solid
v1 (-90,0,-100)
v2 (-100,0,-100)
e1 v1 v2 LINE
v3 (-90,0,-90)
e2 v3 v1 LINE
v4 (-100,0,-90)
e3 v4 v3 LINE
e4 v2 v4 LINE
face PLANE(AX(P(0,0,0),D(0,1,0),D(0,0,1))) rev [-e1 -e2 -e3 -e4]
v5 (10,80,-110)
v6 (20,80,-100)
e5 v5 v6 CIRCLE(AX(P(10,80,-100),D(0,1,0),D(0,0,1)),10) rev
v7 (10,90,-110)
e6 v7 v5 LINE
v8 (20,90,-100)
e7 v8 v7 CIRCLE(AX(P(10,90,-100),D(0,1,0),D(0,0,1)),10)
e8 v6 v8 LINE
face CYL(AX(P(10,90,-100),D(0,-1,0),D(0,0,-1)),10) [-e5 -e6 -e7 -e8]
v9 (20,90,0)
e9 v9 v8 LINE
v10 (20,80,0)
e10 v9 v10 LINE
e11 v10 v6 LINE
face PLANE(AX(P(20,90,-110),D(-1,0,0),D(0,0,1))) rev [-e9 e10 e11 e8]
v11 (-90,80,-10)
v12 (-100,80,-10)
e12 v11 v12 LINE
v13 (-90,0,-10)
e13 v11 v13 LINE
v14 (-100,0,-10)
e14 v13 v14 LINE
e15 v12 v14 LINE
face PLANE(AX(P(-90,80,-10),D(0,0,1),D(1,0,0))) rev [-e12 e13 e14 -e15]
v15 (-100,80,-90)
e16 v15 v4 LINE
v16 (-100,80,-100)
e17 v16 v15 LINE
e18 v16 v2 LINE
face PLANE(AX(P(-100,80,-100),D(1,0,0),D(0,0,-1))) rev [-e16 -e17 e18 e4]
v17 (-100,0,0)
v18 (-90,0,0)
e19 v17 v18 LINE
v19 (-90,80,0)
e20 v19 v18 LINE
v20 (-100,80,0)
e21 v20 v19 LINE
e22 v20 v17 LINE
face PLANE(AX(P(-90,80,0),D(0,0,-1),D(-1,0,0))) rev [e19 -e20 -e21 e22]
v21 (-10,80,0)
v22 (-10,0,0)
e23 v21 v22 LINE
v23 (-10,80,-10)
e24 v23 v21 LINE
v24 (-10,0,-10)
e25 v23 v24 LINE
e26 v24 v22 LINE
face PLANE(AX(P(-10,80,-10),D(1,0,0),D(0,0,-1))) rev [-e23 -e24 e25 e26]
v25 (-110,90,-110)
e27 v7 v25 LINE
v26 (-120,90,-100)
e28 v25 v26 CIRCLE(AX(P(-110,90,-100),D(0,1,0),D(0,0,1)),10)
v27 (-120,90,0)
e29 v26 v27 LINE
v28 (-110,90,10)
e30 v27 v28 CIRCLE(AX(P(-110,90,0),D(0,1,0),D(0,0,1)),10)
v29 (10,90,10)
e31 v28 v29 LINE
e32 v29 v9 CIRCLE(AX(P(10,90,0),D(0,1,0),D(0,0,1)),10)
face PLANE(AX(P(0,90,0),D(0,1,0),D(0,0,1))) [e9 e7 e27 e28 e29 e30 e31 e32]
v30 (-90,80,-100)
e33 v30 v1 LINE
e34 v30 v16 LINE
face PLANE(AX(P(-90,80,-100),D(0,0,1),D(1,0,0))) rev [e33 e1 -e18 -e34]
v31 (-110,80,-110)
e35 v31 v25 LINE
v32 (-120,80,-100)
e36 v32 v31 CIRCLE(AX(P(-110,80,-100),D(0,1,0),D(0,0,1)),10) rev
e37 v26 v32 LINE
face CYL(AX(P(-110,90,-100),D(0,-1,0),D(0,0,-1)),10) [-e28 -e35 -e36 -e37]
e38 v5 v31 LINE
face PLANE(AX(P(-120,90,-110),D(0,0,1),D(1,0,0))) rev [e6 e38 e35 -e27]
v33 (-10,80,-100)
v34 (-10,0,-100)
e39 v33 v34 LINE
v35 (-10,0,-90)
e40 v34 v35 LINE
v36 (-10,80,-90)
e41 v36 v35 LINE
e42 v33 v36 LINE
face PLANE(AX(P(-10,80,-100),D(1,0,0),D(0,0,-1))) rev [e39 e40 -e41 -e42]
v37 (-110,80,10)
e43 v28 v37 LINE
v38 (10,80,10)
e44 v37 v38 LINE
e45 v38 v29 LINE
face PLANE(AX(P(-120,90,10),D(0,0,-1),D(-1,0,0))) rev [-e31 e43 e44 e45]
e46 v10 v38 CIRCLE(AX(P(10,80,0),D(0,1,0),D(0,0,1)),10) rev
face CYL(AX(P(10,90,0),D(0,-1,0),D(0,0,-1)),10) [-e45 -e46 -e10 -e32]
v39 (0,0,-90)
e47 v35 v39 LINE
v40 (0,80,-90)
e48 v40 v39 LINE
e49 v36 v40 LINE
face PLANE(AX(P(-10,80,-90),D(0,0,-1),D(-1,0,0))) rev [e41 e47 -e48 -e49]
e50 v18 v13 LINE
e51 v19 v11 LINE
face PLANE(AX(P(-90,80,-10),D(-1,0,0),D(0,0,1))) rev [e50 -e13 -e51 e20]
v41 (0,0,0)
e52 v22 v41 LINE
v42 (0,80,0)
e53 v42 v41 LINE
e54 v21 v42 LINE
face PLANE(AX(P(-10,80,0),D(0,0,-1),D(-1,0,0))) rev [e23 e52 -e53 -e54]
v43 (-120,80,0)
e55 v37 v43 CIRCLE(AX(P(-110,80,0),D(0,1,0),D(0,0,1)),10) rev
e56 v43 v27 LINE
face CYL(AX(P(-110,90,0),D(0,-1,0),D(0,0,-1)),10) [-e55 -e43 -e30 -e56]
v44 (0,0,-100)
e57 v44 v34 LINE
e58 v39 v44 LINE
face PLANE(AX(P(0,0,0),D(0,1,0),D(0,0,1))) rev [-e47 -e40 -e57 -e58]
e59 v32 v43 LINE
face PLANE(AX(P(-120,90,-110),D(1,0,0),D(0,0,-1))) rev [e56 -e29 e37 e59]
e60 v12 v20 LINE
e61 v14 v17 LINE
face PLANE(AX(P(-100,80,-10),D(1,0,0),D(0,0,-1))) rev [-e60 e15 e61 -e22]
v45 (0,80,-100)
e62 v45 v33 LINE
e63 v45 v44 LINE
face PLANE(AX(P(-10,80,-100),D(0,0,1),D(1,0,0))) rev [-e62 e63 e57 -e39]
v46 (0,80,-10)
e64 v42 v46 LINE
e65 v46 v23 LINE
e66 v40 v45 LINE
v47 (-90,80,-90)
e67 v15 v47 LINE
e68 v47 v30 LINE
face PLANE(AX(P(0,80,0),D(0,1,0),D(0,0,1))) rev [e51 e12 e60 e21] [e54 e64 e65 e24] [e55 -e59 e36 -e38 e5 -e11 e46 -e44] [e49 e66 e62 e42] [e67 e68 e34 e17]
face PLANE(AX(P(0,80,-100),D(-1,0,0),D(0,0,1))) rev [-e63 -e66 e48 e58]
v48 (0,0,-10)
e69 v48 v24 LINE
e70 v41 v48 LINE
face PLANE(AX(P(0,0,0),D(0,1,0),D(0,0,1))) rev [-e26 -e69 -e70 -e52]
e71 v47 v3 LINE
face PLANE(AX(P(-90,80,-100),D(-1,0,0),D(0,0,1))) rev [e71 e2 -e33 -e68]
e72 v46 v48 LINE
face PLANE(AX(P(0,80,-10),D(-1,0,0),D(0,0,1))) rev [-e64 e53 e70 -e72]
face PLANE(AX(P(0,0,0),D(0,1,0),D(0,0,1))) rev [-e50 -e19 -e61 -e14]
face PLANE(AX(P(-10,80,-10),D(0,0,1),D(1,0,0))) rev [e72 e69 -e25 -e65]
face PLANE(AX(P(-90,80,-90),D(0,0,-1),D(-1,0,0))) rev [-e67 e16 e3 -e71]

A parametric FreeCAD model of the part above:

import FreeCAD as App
import Part
import Sketcher
from FreeCAD import Vector


def edges_at(feature, points):
    """Names of the edges that pass closest to the given points."""
    edges = feature.Shape.Edges
    near = lambda p: min(range(len(edges)), key=lambda i: edges[i].distToShape(Part.Vertex(*p))[0])
    return sorted({f"Edge{near(p) + 1}" for p in points})

doc = App.newDocument("Part")
params = doc.addObject("Spreadsheet::Sheet", "Params")
for row, (alias, value) in enumerate([
    ("sketch1_width", "10 mm"),
    ("pad1_length", "80 mm"),
    ("sketch2_width", "10 mm"),
    ("pad2_length", "80 mm"),
    ("sketch3_width", "10 mm"),
    ("pad3_length", "80 mm"),
    ("sketch4_width", "10 mm"),
    ("pad4_length", "80 mm"),
    ("sketch5_width", "140 mm"),
    ("sketch5_height", "120 mm"),
    ("pad5_length", "10 mm"),
    ("fillet_radius", "10 mm"),
], start=1):
    params.set(f"A{row}", alias)
    params.set(f"B{row}", "=" + value)
    params.setAlias(f"B{row}", alias)

body = doc.addObject("PartDesign::Body", "Body")

sketch1 = body.newObject("Sketcher::SketchObject", "Sketch")
sketch1.AttachmentSupport = (doc.getObject("XZ_Plane"), [""])
sketch1.MapMode = "FlatFace"
sketch1.addGeometry([
    Part.LineSegment(Vector(-10, -100, 0), Vector(-10, -90, 0)),
    Part.LineSegment(Vector(-10, -90, 0), Vector(0, -90, 0)),
    Part.LineSegment(Vector(0, -90, 0), Vector(0, -100, 0)),
    Part.LineSegment(Vector(0, -100, 0), Vector(-10, -100, 0)),
], False)
sketch1.addConstraint([
    Sketcher.Constraint("Coincident", 0, 2, 1, 1),
    Sketcher.Constraint("Coincident", 1, 2, 2, 1),
    Sketcher.Constraint("Coincident", 2, 2, 3, 1),
    Sketcher.Constraint("Coincident", 3, 2, 0, 1),
    Sketcher.Constraint("Vertical", 0),
    Sketcher.Constraint("Horizontal", 1),
    Sketcher.Constraint("Vertical", 2),
    Sketcher.Constraint("Horizontal", 3),
    Sketcher.Constraint("PointOnObject", 1, 2, -2),
    Sketcher.Constraint("Equal", 3, 0),
    Sketcher.Constraint("DistanceX", 1, 1, 1, 2, 10.0),
    Sketcher.Constraint("DistanceY", 0, 2, -1, 1, 90.0),
])
sketch1.setExpression("Constraints[10]", "Params.sketch1_width")
pad1 = body.newObject("PartDesign::Pad", "Pad")
pad1.Profile = sketch1
pad1.setExpression("Length", "Params.pad1_length")
pad1.Reversed = True
body2 = doc.addObject("PartDesign::Body", "Body001")

sketch2 = body2.newObject("Sketcher::SketchObject", "Sketch001")
sketch2.AttachmentSupport = (doc.getObject("XZ_Plane001"), [""])
sketch2.MapMode = "FlatFace"
sketch2.addGeometry([
    Part.LineSegment(Vector(-10, -10, 0), Vector(-10, 0, 0)),
    Part.LineSegment(Vector(-10, 0, 0), Vector(0, 0, 0)),
    Part.LineSegment(Vector(0, 0, 0), Vector(0, -10, 0)),
    Part.LineSegment(Vector(0, -10, 0), Vector(-10, -10, 0)),
], False)
sketch2.addConstraint([
    Sketcher.Constraint("Coincident", 0, 2, 1, 1),
    Sketcher.Constraint("Coincident", 1, 2, 2, 1),
    Sketcher.Constraint("Coincident", 2, 2, 3, 1),
    Sketcher.Constraint("Coincident", 3, 2, 0, 1),
    Sketcher.Constraint("Vertical", 0),
    Sketcher.Constraint("Horizontal", 1),
    Sketcher.Constraint("Vertical", 2),
    Sketcher.Constraint("Horizontal", 3),
    Sketcher.Constraint("Coincident", 1, 2, -1, 1),
    Sketcher.Constraint("Equal", 3, 0),
    Sketcher.Constraint("DistanceX", 1, 1, 1, 2, 10.0),
])
sketch2.setExpression("Constraints[10]", "Params.sketch2_width")
pad2 = body2.newObject("PartDesign::Pad", "Pad001")
pad2.Profile = sketch2
pad2.setExpression("Length", "Params.pad2_length")
pad2.Reversed = True
body3 = doc.addObject("PartDesign::Body", "Body002")

sketch3 = body3.newObject("Sketcher::SketchObject", "Sketch002")
sketch3.AttachmentSupport = (doc.getObject("XZ_Plane002"), [""])
sketch3.MapMode = "FlatFace"
sketch3.addGeometry([
    Part.LineSegment(Vector(-100, -10, 0), Vector(-100, 0, 0)),
    Part.LineSegment(Vector(-100, 0, 0), Vector(-90, 0, 0)),
    Part.LineSegment(Vector(-90, 0, 0), Vector(-90, -10, 0)),
    Part.LineSegment(Vector(-90, -10, 0), Vector(-100, -10, 0)),
], False)
sketch3.addConstraint([
    Sketcher.Constraint("Coincident", 0, 2, 1, 1),
    Sketcher.Constraint("Coincident", 1, 2, 2, 1),
    Sketcher.Constraint("Coincident", 2, 2, 3, 1),
    Sketcher.Constraint("Coincident", 3, 2, 0, 1),
    Sketcher.Constraint("Vertical", 0),
    Sketcher.Constraint("Horizontal", 1),
    Sketcher.Constraint("Vertical", 2),
    Sketcher.Constraint("Horizontal", 3),
    Sketcher.Constraint("PointOnObject", 0, 2, -1),
    Sketcher.Constraint("Equal", 3, 0),
    Sketcher.Constraint("DistanceX", 1, 1, 1, 2, 10.0),
    Sketcher.Constraint("DistanceX", 0, 2, -1, 1, 100.0),
])
sketch3.setExpression("Constraints[10]", "Params.sketch3_width")
pad3 = body3.newObject("PartDesign::Pad", "Pad002")
pad3.Profile = sketch3
pad3.setExpression("Length", "Params.pad3_length")
pad3.Reversed = True
body4 = doc.addObject("PartDesign::Body", "Body003")

sketch4 = body4.newObject("Sketcher::SketchObject", "Sketch003")
sketch4.AttachmentSupport = (doc.getObject("XZ_Plane003"), [""])
sketch4.MapMode = "FlatFace"
sketch4.addGeometry([
    Part.LineSegment(Vector(-100, -100, 0), Vector(-100, -90, 0)),
    Part.LineSegment(Vector(-100, -90, 0), Vector(-90, -90, 0)),
    Part.LineSegment(Vector(-90, -90, 0), Vector(-90, -100, 0)),
    Part.LineSegment(Vector(-90, -100, 0), Vector(-100, -100, 0)),
], False)
sketch4.addConstraint([
    Sketcher.Constraint("Coincident", 0, 2, 1, 1),
    Sketcher.Constraint("Coincident", 1, 2, 2, 1),
    Sketcher.Constraint("Coincident", 2, 2, 3, 1),
    Sketcher.Constraint("Coincident", 3, 2, 0, 1),
    Sketcher.Constraint("Vertical", 0),
    Sketcher.Constraint("Horizontal", 1),
    Sketcher.Constraint("Vertical", 2),
    Sketcher.Constraint("Horizontal", 3),
    Sketcher.Constraint("Equal", 3, 0),
    Sketcher.Constraint("DistanceX", 1, 1, 1, 2, 10.0),
    Sketcher.Constraint("DistanceX", 0, 2, -1, 1, 100.0),
    Sketcher.Constraint("DistanceY", 0, 2, -1, 1, 90.0),
])
sketch4.setExpression("Constraints[9]", "Params.sketch4_width")
pad4 = body4.newObject("PartDesign::Pad", "Pad003")
pad4.Profile = sketch4
pad4.setExpression("Length", "Params.pad4_length")
pad4.Reversed = True
body.AllowCompound = True
doc.recompute()

boolean = body.newObject("PartDesign::Boolean", "Boolean")
boolean.Type = "Fuse"
boolean.addObjects([body2])
doc.recompute()

boolean2 = body.newObject("PartDesign::Boolean", "Boolean001")
boolean2.Type = "Fuse"
boolean2.addObjects([body3])
doc.recompute()

boolean3 = body.newObject("PartDesign::Boolean", "Boolean002")
boolean3.Type = "Fuse"
boolean3.addObjects([body4])

sketch5 = body.newObject("Sketcher::SketchObject", "Sketch004")
sketch5.AttachmentSupport = (doc.getObject("XZ_Plane"), [""])
sketch5.MapMode = "FlatFace"
sketch5.AttachmentOffset = App.Placement(Vector(0, 0, -80), App.Rotation())
sketch5.addGeometry([
    Part.LineSegment(Vector(-120, -110, 0), Vector(-120, 10, 0)),
    Part.LineSegment(Vector(-120, 10, 0), Vector(20, 10, 0)),
    Part.LineSegment(Vector(20, 10, 0), Vector(20, -110, 0)),
    Part.LineSegment(Vector(20, -110, 0), Vector(-120, -110, 0)),
], False)
sketch5.addConstraint([
    Sketcher.Constraint("Coincident", 0, 2, 1, 1),
    Sketcher.Constraint("Coincident", 1, 2, 2, 1),
    Sketcher.Constraint("Coincident", 2, 2, 3, 1),
    Sketcher.Constraint("Coincident", 3, 2, 0, 1),
    Sketcher.Constraint("Vertical", 0),
    Sketcher.Constraint("Horizontal", 1),
    Sketcher.Constraint("Vertical", 2),
    Sketcher.Constraint("Horizontal", 3),
    Sketcher.Constraint("DistanceX", 1, 1, 1, 2, 140.0),
    Sketcher.Constraint("DistanceY", 0, 1, 0, 2, 120.0),
    Sketcher.Constraint("DistanceX", 0, 2, -1, 1, 120.0),
    Sketcher.Constraint("DistanceY", -1, 1, 0, 2, 10.0),
])
sketch5.setExpression("Constraints[8]", "Params.sketch5_width")
sketch5.setExpression("Constraints[9]", "Params.sketch5_height")
pad5 = body.newObject("PartDesign::Pad", "Pad004")
pad5.Profile = sketch5
pad5.setExpression("Length", "Params.pad5_length")
pad5.Reversed = True
doc.recompute()

fillet = body.newObject("PartDesign::Fillet", "Fillet")
fillet.Base = (pad5, edges_at(pad5, [
    (-120, 85, -110),
    (-120, 85, 10),
    (20, 85, 10),
    (20, 85, -110),
]))
fillet.setExpression("Radius", "Params.fillet_radius")

doc.recompute()
